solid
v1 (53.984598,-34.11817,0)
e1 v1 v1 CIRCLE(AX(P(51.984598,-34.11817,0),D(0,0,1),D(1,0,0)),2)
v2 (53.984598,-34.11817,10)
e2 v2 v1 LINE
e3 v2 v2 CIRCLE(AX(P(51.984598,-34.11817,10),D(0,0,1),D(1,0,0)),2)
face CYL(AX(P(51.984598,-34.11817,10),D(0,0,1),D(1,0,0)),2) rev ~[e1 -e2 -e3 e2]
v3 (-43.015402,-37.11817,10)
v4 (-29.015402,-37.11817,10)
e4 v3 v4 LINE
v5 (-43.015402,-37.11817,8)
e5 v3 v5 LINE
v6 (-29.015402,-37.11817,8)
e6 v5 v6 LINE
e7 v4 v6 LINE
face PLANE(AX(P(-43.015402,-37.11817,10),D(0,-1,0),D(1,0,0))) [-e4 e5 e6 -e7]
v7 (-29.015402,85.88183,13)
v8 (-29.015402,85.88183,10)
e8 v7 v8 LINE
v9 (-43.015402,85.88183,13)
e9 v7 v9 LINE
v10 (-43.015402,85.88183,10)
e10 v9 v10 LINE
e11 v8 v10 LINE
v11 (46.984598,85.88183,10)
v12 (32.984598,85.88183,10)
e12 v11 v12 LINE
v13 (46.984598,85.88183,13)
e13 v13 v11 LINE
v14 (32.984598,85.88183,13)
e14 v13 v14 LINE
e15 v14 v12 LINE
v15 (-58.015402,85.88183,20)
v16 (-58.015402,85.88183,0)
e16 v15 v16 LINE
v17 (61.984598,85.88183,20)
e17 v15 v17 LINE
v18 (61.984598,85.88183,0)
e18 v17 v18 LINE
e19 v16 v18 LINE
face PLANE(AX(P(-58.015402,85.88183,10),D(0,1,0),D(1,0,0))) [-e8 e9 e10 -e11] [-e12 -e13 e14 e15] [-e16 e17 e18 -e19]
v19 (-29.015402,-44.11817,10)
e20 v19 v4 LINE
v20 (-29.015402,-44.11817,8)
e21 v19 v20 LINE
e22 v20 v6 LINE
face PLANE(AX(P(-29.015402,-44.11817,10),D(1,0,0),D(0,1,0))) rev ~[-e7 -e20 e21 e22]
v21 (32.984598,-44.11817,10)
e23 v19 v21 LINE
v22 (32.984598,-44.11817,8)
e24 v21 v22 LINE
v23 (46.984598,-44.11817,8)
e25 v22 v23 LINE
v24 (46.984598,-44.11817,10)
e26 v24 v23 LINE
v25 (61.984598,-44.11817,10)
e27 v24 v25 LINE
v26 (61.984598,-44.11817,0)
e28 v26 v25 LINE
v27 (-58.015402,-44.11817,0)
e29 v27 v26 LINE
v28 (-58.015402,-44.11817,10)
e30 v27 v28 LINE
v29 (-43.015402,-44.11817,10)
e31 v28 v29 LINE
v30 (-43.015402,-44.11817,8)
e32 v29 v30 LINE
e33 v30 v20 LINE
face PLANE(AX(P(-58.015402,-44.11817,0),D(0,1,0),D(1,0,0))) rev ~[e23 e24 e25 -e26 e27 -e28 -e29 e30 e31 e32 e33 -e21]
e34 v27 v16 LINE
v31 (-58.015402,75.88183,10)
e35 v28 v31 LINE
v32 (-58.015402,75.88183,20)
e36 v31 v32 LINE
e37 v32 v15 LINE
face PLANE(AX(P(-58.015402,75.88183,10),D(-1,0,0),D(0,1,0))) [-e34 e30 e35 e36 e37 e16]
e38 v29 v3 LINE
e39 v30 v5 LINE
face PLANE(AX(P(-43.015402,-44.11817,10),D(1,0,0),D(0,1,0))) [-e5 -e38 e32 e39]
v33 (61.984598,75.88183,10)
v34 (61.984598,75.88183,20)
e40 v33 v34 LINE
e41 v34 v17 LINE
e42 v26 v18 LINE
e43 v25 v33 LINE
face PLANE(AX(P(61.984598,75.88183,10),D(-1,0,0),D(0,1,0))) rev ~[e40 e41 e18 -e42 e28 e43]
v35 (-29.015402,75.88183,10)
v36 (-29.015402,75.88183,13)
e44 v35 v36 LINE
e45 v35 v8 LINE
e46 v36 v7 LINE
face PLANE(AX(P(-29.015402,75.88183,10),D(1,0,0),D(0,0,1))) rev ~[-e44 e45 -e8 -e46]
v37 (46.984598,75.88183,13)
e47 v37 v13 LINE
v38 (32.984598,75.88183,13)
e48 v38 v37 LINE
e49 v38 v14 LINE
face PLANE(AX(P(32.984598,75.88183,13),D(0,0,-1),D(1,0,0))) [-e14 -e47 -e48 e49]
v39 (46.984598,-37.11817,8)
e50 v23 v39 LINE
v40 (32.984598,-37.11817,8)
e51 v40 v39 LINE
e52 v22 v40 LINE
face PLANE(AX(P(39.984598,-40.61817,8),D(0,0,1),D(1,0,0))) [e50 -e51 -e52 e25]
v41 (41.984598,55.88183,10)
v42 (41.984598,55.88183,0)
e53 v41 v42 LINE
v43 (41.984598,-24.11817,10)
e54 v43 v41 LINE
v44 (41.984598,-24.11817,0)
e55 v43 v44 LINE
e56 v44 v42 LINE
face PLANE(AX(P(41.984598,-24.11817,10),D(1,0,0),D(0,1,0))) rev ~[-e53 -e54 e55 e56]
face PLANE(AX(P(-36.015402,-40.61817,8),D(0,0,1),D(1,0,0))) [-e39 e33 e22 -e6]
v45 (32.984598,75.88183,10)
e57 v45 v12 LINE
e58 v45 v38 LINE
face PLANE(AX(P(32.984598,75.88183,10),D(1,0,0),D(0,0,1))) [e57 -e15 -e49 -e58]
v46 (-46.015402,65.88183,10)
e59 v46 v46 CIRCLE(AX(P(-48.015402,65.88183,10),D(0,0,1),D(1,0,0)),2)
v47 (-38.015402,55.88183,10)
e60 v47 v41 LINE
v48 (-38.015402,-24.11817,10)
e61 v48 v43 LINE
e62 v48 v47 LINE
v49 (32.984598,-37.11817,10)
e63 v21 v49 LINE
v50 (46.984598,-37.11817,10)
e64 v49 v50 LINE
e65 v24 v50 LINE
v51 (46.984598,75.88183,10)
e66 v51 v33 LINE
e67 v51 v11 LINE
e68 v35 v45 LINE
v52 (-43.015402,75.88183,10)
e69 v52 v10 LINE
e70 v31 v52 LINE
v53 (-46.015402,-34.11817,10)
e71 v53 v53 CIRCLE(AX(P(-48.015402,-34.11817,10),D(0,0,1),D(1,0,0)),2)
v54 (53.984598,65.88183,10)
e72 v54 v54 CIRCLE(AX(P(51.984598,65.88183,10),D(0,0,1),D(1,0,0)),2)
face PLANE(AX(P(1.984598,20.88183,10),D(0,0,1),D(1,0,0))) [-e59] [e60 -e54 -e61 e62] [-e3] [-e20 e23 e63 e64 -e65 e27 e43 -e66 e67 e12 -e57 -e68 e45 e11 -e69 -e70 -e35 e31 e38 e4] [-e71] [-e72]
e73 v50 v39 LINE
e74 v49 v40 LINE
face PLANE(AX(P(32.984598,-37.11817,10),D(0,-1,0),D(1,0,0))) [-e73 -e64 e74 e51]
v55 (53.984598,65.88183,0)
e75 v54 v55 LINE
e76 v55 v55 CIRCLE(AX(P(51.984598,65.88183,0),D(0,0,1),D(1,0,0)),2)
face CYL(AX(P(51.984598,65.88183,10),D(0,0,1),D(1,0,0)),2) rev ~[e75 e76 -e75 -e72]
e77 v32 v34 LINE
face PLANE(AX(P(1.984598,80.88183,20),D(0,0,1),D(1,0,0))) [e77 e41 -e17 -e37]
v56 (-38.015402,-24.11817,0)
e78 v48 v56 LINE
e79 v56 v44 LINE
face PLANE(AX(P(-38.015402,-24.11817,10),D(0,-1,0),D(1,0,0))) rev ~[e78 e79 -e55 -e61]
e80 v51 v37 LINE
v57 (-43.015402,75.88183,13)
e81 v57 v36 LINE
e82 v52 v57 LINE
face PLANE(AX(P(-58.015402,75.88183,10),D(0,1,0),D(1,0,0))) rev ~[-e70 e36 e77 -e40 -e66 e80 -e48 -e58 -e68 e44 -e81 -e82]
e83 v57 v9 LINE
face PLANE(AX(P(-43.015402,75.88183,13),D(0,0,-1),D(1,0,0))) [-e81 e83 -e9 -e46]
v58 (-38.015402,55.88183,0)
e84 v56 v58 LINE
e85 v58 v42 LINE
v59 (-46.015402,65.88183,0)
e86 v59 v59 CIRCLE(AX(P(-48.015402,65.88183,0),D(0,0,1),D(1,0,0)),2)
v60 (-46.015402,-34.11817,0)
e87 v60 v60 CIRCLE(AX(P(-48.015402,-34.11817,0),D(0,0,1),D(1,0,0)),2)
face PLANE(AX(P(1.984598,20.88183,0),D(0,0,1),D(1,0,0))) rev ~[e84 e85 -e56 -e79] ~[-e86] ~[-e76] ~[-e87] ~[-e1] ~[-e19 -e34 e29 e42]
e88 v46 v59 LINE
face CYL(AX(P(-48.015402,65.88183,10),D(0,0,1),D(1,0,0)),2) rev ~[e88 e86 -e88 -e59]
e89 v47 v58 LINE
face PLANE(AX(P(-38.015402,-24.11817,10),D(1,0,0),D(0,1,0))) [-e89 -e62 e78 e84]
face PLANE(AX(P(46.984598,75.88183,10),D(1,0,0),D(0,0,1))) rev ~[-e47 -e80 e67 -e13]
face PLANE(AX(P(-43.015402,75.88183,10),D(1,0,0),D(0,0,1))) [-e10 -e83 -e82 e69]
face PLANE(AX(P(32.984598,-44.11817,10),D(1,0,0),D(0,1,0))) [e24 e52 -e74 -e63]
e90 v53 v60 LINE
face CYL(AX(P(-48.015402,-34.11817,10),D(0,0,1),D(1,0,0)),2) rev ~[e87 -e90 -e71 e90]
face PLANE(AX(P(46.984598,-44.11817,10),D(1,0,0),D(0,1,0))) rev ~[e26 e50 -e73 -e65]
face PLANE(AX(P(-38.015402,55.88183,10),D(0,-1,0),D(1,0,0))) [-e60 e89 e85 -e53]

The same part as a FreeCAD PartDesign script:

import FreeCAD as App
import Part
import Sketcher


def add_polygon(sketch, points):
    """Adds a closed chain of lines whose ends are joined by coincident constraints."""
    first, n = sketch.GeometryCount, len(points)
    for a, b in zip(points, points[1:] + points[:1]):
        sketch.addGeometry(Part.LineSegment(App.Vector(*a, 0), App.Vector(*b, 0)), False)
    for i in range(n):
        sketch.addConstraint(Sketcher.Constraint("Coincident", first + i, 2, first + (i + 1) % n, 1))

doc = App.newDocument("Part")
body = doc.addObject("PartDesign::Body", "Body")

sketch1 = body.newObject("Sketcher::SketchObject", "Sketch")
sketch1.AttachmentSupport = (doc.getObject("XY_Plane"), [""])
sketch1.MapMode = "FlatFace"
add_polygon(sketch1, [(-58.015402, 85.88183), (-58.015402, -44.11817), (61.984598, -44.11817), (61.984598, 85.88183)])
sketch1.addConstraint([
    Sketcher.Constraint("Vertical", 0),
    Sketcher.Constraint("Horizontal", 1),
    Sketcher.Constraint("Vertical", 2),
    Sketcher.Constraint("Horizontal", 3),
    Sketcher.Constraint("DistanceX", 1, 1, 1, 2, 120.0),
    Sketcher.Constraint("DistanceY", 0, 2, 0, 1, 130.0),
    Sketcher.Constraint("DistanceY", 0, 2, -1, 1, 44.11817),
    Sketcher.Constraint("DistanceX", 0, 2, -1, 1, 58.015402),
])
pad1 = body.newObject("PartDesign::Pad", "Pad")
pad1.Profile = sketch1
pad1.Length = 10

sketch2 = body.newObject("Sketcher::SketchObject", "Sketch001")
sketch2.AttachmentSupport = (doc.getObject("XY_Plane"), [""])
sketch2.MapMode = "FlatFace"
sketch2.AttachmentOffset = App.Placement(App.Vector(0, 0, 10), App.Rotation())
add_polygon(sketch2, [(-58.015402, 85.88183), (-58.015402, 75.88183), (61.984598, 75.88183), (61.984598, 85.88183)])
sketch2.addConstraint([
    Sketcher.Constraint("Vertical", 0),
    Sketcher.Constraint("Horizontal", 1),
    Sketcher.Constraint("Vertical", 2),
    Sketcher.Constraint("Horizontal", 3),
    Sketcher.Constraint("DistanceX", 1, 1, 1, 2, 120.0),
    Sketcher.Constraint("DistanceY", 0, 2, 0, 1, 10.0),
    Sketcher.Constraint("DistanceY", -1, 1, 0, 2, 75.88183),
    Sketcher.Constraint("DistanceX", 0, 2, -1, 1, 58.015402),
])
pad2 = body.newObject("PartDesign::Pad", "Pad001")
pad2.Profile = sketch2
pad2.Length = 10

sketch3 = body.newObject("Sketcher::SketchObject", "Sketch002")
sketch3.AttachmentSupport = (doc.getObject("XZ_Plane"), [""])
sketch3.MapMode = "FlatFace"
sketch3.AttachmentOffset = App.Placement(App.Vector(0, 0, -75.88183), App.Rotation())
add_polygon(sketch3, [(-43.015402, 13), (-43.015402, 10), (-29.015402, 10), (-29.015402, 13)])
sketch3.addConstraint([
    Sketcher.Constraint("Vertical", 0),
    Sketcher.Constraint("Horizontal", 1),
    Sketcher.Constraint("Vertical", 2),
    Sketcher.Constraint("Horizontal", 3),
    Sketcher.Constraint("DistanceX", 1, 1, 1, 2, 14.0),
    Sketcher.Constraint("DistanceY", 0, 2, 0, 1, 3.0),
    Sketcher.Constraint("DistanceY", -1, 1, 0, 2, 10.0),
    Sketcher.Constraint("DistanceX", 0, 2, -1, 1, 43.015402),
])
pocket1 = body.newObject("PartDesign::Pocket", "Pocket")
pocket1.Profile = sketch3
pocket1.Length = 25

sketch4 = body.newObject("Sketcher::SketchObject", "Sketch003")
sketch4.AttachmentSupport = (doc.getObject("XZ_Plane"), [""])
sketch4.MapMode = "FlatFace"
sketch4.AttachmentOffset = App.Placement(App.Vector(0, 0, -75.88183), App.Rotation())
add_polygon(sketch4, [(32.984598, 13), (32.984598, 10), (46.984598, 10), (46.984598, 13)])
sketch4.addConstraint([
    Sketcher.Constraint("Vertical", 0),
    Sketcher.Constraint("Horizontal", 1),
    Sketcher.Constraint("Vertical", 2),
    Sketcher.Constraint("Horizontal", 3),
    Sketcher.Constraint("DistanceX", 1, 1, 1, 2, 14.0),
    Sketcher.Constraint("DistanceY", 0, 2, 0, 1, 3.0),
    Sketcher.Constraint("DistanceY", -1, 1, 0, 2, 10.0),
    Sketcher.Constraint("DistanceX", -1, 1, 0, 2, 32.984598),
])
pocket2 = body.newObject("PartDesign::Pocket", "Pocket001")
pocket2.Profile = sketch4
pocket2.Length = 25

sketch5 = body.newObject("Sketcher::SketchObject", "Sketch004")
sketch5.AttachmentSupport = (doc.getObject("XY_Plane"), [""])
sketch5.MapMode = "FlatFace"
sketch5.AttachmentOffset = App.Placement(App.Vector(0, 0, 10), App.Rotation())
sketch5.addGeometry([
    Part.Circle(App.Vector(-48.015402, 65.88183, 0), App.Vector(0, 0, 1), 2),
    Part.Circle(App.Vector(51.984598, 65.88183, 0), App.Vector(0, 0, 1), 2),
    Part.Circle(App.Vector(51.984598, -34.11817, 0), App.Vector(0, 0, 1), 2),
    Part.Circle(App.Vector(-48.015402, -34.11817, 0), App.Vector(0, 0, 1), 2),
], False)
sketch5.addConstraint([
    Sketcher.Constraint("Equal", 0, 1),
    Sketcher.Constraint("Equal", 1, 2),
    Sketcher.Constraint("Equal", 2, 3),
    Sketcher.Constraint("Horizontal", 0, 3, 1, 3),
    Sketcher.Constraint("Horizontal", 2, 3, 3, 3),
    Sketcher.Constraint("Vertical", 1, 3, 2, 3),
    Sketcher.Constraint("Vertical", 0, 3, 3, 3),
    Sketcher.Constraint("Diameter", 0, 4.0),
    Sketcher.Constraint("DistanceX", 0, 3, 1, 3, 100.0),
    Sketcher.Constraint("DistanceY", 2, 3, 1, 3, 100.0),
    Sketcher.Constraint("DistanceY", -1, 1, 0, 3, 65.88183),
    Sketcher.Constraint("DistanceX", 0, 3, -1, 1, 48.015402),
])
pocket3 = body.newObject("PartDesign::Pocket", "Pocket002")
pocket3.Profile = sketch5
pocket3.Length = 25

sketch6 = body.newObject("Sketcher::SketchObject", "Sketch005")
sketch6.AttachmentSupport = (doc.getObject("XY_Plane"), [""])
sketch6.MapMode = "FlatFace"
sketch6.AttachmentOffset = App.Placement(App.Vector(0, 0, 10), App.Rotation())
add_polygon(sketch6, [(-43.015402, -37.11817), (-43.015402, -44.11817), (-29.015402, -44.11817), (-29.015402, -37.11817)])
add_polygon(sketch6, [(32.984598, -37.11817), (32.984598, -44.11817), (46.984598, -44.11817), (46.984598, -37.11817)])
sketch6.addConstraint([
    Sketcher.Constraint("Vertical", 0),
    Sketcher.Constraint("Horizontal", 1),
    Sketcher.Constraint("Vertical", 2),
    Sketcher.Constraint("Horizontal", 3),
    Sketcher.Constraint("Vertical", 4),
    Sketcher.Constraint("Horizontal", 5),
    Sketcher.Constraint("Vertical", 6),
    Sketcher.Constraint("Horizontal", 7),
    Sketcher.Constraint("Horizontal", 1, 2, 4, 2),
    Sketcher.Constraint("Horizontal", 3, 2, 6, 2),
    Sketcher.Constraint("Equal", 3, 5),
    Sketcher.Constraint("DistanceX", 1, 1, 1, 2, 14.0),
    Sketcher.Constraint("DistanceY", 0, 2, 0, 1, 7.0),
    Sketcher.Constraint("DistanceX", 1, 2, 4, 2, 62.0),
    Sketcher.Constraint("DistanceY", 0, 2, -1, 1, 44.11817),
    Sketcher.Constraint("DistanceX", 0, 2, -1, 1, 43.015402),
])
pocket4 = body.newObject("PartDesign::Pocket", "Pocket003")
pocket4.Profile = sketch6
pocket4.Length = 2

sketch7 = body.newObject("Sketcher::SketchObject", "Sketch006")
sketch7.AttachmentSupport = (doc.getObject("XY_Plane"), [""])
sketch7.MapMode = "FlatFace"
sketch7.AttachmentOffset = App.Placement(App.Vector(0, 0, 10), App.Rotation())
add_polygon(sketch7, [(-38.015402, 55.88183), (-38.015402, -24.11817), (41.984598, -24.11817), (41.984598, 55.88183)])
sketch7.addConstraint([
    Sketcher.Constraint("Vertical", 0),
    Sketcher.Constraint("Horizontal", 1),
    Sketcher.Constraint("Vertical", 2),
    Sketcher.Constraint("Horizontal", 3),
    Sketcher.Constraint("Equal", 3, 0),
    Sketcher.Constraint("DistanceX", 1, 1, 1, 2, 80.0),
    Sketcher.Constraint("DistanceY", 0, 2, -1, 1, 24.11817),
    Sketcher.Constraint("DistanceX", 0, 2, -1, 1, 38.015402),
])
pocket5 = body.newObject("PartDesign::Pocket", "Pocket004")
pocket5.Profile = sketch7
pocket5.Length = 25

doc.recompute()
